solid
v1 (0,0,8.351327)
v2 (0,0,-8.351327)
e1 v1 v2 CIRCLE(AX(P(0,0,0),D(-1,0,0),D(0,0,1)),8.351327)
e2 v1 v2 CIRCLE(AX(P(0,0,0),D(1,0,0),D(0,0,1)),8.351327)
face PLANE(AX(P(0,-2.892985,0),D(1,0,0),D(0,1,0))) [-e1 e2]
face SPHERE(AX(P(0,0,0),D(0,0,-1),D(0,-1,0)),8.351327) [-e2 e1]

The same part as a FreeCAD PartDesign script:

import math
import FreeCAD as App
import Part
import Sketcher
Q = App.Units.Quantity

doc = App.newDocument("Part")
params = doc.addObject("Spreadsheet::Sheet", "Params")
for row, (alias, value) in enumerate([
    ("revolution_angle", "180 deg"),
], start=1):
    params.set(f"A{row}", alias)
    params.set(f"B{row}", "=" + value)
    params.setAlias(f"B{row}", alias)

body = doc.addObject("PartDesign::Body", "Body")

sketch1 = body.newObject("Sketcher::SketchObject", "Sketch")
sketch1.AttachmentSupport = (doc.getObject("YZ_Plane"), [""])
sketch1.MapMode = "FlatFace"
sketch1.addGeometry([
    Part.LineSegment(App.Vector(0, -8, 0), App.Vector(0, 8, 0)),
    Part.ArcOfCircle(Part.Circle(App.Vector(0, 0, 0), App.Vector(0, 0, 1), 8), math.radians(90), math.radians(270)),
], False)
sketch1.addConstraint([
    Sketcher.Constraint("Coincident", 0, 1, 1, 2),
    Sketcher.Constraint("Coincident", 1, 1, 0, 2),
    Sketcher.Constraint("Vertical", 0),
    Sketcher.Constraint("Coincident", 1, 3, -1, 1),
    Sketcher.Constraint("PointOnObject", 0, 1, -2),
    Sketcher.Constraint("Radius", 1, Q("8.351327 mm")),
])
revolution = body.newObject("PartDesign::Revolution", "Revolution")
revolution.Profile = sketch1
revolution.ReferenceAxis = (sketch1, ["V_Axis"])
revolution.setExpression("Angle", "Params.revolution_angle")
revolution.Reversed = True

doc.recompute()
